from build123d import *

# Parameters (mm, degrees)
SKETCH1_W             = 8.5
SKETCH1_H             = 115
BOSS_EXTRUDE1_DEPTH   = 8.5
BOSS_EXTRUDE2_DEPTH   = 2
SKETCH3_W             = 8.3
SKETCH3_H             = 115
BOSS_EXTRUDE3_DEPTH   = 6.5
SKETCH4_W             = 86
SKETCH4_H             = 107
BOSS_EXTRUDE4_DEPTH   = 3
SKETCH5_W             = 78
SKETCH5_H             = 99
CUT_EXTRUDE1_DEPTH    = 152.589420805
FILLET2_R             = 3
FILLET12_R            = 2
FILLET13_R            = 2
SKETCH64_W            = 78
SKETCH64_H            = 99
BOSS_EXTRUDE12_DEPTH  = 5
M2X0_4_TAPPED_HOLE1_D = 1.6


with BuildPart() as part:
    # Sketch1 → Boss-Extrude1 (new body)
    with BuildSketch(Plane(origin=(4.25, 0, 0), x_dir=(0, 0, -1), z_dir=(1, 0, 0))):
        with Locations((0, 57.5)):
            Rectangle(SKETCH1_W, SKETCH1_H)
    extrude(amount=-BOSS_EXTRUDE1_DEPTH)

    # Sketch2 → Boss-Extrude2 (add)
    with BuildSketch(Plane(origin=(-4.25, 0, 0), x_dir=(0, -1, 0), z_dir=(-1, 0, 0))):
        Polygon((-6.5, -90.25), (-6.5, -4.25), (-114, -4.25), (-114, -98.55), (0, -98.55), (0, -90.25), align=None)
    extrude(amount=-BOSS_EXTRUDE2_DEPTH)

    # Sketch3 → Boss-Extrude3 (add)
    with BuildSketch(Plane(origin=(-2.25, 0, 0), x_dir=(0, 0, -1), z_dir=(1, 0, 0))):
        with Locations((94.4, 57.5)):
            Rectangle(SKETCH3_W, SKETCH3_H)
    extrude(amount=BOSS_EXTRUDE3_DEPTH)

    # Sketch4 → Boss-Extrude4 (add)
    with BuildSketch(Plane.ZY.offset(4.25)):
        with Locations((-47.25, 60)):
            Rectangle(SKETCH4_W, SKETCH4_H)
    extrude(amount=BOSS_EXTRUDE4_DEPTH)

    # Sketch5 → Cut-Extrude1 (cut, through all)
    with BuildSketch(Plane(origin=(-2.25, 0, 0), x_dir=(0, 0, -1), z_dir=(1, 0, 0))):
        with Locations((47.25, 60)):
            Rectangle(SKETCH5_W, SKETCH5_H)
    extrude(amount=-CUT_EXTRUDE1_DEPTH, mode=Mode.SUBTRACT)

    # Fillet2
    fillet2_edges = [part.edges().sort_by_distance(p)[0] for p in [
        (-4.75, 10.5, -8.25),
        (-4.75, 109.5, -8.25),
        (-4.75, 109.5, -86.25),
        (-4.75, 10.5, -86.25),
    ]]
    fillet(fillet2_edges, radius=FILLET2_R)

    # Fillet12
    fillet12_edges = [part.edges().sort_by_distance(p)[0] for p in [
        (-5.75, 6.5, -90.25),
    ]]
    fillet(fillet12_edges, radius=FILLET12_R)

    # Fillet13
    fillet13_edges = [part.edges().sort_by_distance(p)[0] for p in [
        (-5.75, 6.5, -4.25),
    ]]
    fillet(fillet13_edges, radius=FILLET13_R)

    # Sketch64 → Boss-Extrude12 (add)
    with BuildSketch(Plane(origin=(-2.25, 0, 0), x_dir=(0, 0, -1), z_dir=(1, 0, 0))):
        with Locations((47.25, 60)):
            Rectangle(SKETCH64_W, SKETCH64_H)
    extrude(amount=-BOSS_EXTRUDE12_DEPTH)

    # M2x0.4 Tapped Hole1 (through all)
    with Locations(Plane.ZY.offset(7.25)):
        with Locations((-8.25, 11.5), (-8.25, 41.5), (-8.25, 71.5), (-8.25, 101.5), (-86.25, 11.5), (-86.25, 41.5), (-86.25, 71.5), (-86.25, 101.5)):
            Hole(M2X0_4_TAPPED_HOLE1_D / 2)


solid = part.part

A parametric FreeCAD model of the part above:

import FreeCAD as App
import Part
import Sketcher

V = App.Vector
Q = App.Units.Quantity


def edges_at(feature, points):
    """Names of the edges that pass closest to the given points."""
    edges = feature.Shape.Edges
    near = lambda p: min(range(len(edges)), key=lambda i: edges[i].distToShape(Part.Vertex(*p))[0])
    return sorted({f"Edge{near(p) + 1}" for p in points})

doc = App.newDocument("Part")
body = doc.addObject("PartDesign::Body", "Body")

# Sketch on YZ plane
sketch1 = body.newObject("Sketcher::SketchObject", "Sketch")
sketch1.AttachmentSupport = (doc.getObject("YZ_Plane"), [""])
sketch1.MapMode = "FlatFace"
sketch1.AttachmentOffset = App.Placement(V(0, 0, 4.25), App.Rotation())
sketch1.addGeometry(Part.LineSegment(V(115, 4, 0), V(0, 4, 0)), False)
sketch1.addGeometry(Part.LineSegment(V(0, 4, 0), V(0, -4, 0)), False)
sketch1.addGeometry(Part.LineSegment(V(0, -4, 0), V(115, -4, 0)), False)
sketch1.addGeometry(Part.LineSegment(V(115, -4, 0), V(115, 4, 0)), False)
sketch1.addConstraint(Sketcher.Constraint("Coincident", 0, 2, 1, 1))
sketch1.addConstraint(Sketcher.Constraint("Coincident", 1, 2, 2, 1))
sketch1.addConstraint(Sketcher.Constraint("Coincident", 2, 2, 3, 1))
sketch1.addConstraint(Sketcher.Constraint("Coincident", 3, 2, 0, 1))
sketch1.addConstraint(Sketcher.Constraint("Horizontal", 0))
sketch1.addConstraint(Sketcher.Constraint("Vertical", 1))
sketch1.addConstraint(Sketcher.Constraint("Horizontal", 2))
sketch1.addConstraint(Sketcher.Constraint("Vertical", 3))
sketch1.addConstraint(Sketcher.Constraint("Symmetric", 0, 2, 1, 2, -1, 1))
sketch1.addConstraint(Sketcher.Constraint("DistanceX", 0, 2, 0, 1, Q("115 mm")))
sketch1.addConstraint(Sketcher.Constraint("DistanceY", 1, 2, 1, 1, Q("8.5 mm")))
pad1 = body.newObject("PartDesign::Pad", "Pad")
pad1.Profile = sketch1
pad1.Length = 8.5
pad1.Reversed = True

# Sketch on YZ plane
sketch2 = body.newObject("Sketcher::SketchObject", "Sketch001")
sketch2.AttachmentSupport = (doc.getObject("YZ_Plane"), [""])
sketch2.MapMode = "FlatFace"
sketch2.AttachmentOffset = App.Placement(V(0, 0, -4.25), App.Rotation())
sketch2.addGeometry(Part.LineSegment(V(6, -90, 0), V(6, -4, 0)), False)
sketch2.addGeometry(Part.LineSegment(V(6, -4, 0), V(114, -4, 0)), False)
sketch2.addGeometry(Part.LineSegment(V(114, -4, 0), V(114, -99, 0)), False)
sketch2.addGeometry(Part.LineSegment(V(114, -99, 0), V(0, -99, 0)), False)
sketch2.addGeometry(Part.LineSegment(V(0, -99, 0), V(0, -90, 0)), False)
sketch2.addGeometry(Part.LineSegment(V(0, -90, 0), V(6, -90, 0)), False)
sketch2.addConstraint(Sketcher.Constraint("Coincident", 0, 2, 1, 1))
sketch2.addConstraint(Sketcher.Constraint("Coincident", 1, 2, 2, 1))
sketch2.addConstraint(Sketcher.Constraint("Coincident", 2, 2, 3, 1))
sketch2.addConstraint(Sketcher.Constraint("Coincident", 3, 2, 4, 1))
sketch2.addConstraint(Sketcher.Constraint("Coincident", 4, 2, 5, 1))
sketch2.addConstraint(Sketcher.Constraint("Coincident", 5, 2, 0, 1))
sketch2.addConstraint(Sketcher.Constraint("Vertical", 0))
sketch2.addConstraint(Sketcher.Constraint("Horizontal", 1))
sketch2.addConstraint(Sketcher.Constraint("Vertical", 2))
sketch2.addConstraint(Sketcher.Constraint("Horizontal", 3))
sketch2.addConstraint(Sketcher.Constraint("Vertical", 4))
sketch2.addConstraint(Sketcher.Constraint("Horizontal", 5))
sketch2.addConstraint(Sketcher.Constraint("PointOnObject", 3, 2, -2))
sketch2.addConstraint(Sketcher.Constraint("DistanceX", 3, 2, 3, 1, Q("114 mm")))
sketch2.addConstraint(Sketcher.Constraint("DistanceY", 0, 1, 0, 2, Q("86 mm")))
sketch2.addConstraint(Sketcher.Constraint("DistanceX", 1, 1, 1, 2, Q("107.5 mm")))
sketch2.addConstraint(Sketcher.Constraint("DistanceY", 2, 2, 2, 1, Q("94.3 mm")))
sketch2.addConstraint(Sketcher.Constraint("DistanceY", 0, 2, -1, 1, Q("4.25 mm")))
pad2 = body.newObject("PartDesign::Pad", "Pad001")
pad2.Profile = sketch2
pad2.Length = 2

# Sketch on YZ plane
sketch3 = body.newObject("Sketcher::SketchObject", "Sketch002")
sketch3.AttachmentSupport = (doc.getObject("YZ_Plane"), [""])
sketch3.MapMode = "FlatFace"
sketch3.AttachmentOffset = App.Placement(V(0, 0, -2.25), App.Rotation())
sketch3.addGeometry(Part.LineSegment(V(115, -90, 0), V(0, -90, 0)), False)
sketch3.addGeometry(Part.LineSegment(V(0, -90, 0), V(0, -99, 0)), False)
sketch3.addGeometry(Part.LineSegment(V(0, -99, 0), V(115, -99, 0)), False)
sketch3.addGeometry(Part.LineSegment(V(115, -99, 0), V(115, -90, 0)), False)
sketch3.addConstraint(Sketcher.Constraint("Coincident", 0, 2, 1, 1))
sketch3.addConstraint(Sketcher.Constraint("Coincident", 1, 2, 2, 1))
sketch3.addConstraint(Sketcher.Constraint("Coincident", 2, 2, 3, 1))
sketch3.addConstraint(Sketcher.Constraint("Coincident", 3, 2, 0, 1))
sketch3.addConstraint(Sketcher.Constraint("Horizontal", 0))
sketch3.addConstraint(Sketcher.Constraint("Vertical", 1))
sketch3.addConstraint(Sketcher.Constraint("Horizontal", 2))
sketch3.addConstraint(Sketcher.Constraint("Vertical", 3))
sketch3.addConstraint(Sketcher.Constraint("PointOnObject", 0, 2, -2))
sketch3.addConstraint(Sketcher.Constraint("DistanceX", 0, 2, 0, 1, Q("115 mm")))
sketch3.addConstraint(Sketcher.Constraint("DistanceY", 1, 2, 1, 1, Q("8.3 mm")))
sketch3.addConstraint(Sketcher.Constraint("DistanceY", 0, 2, -1, 1, Q("90.25 mm")))
pad3 = body.newObject("PartDesign::Pad", "Pad002")
pad3.Profile = sketch3
pad3.Length = 6.5

# Sketch on YZ plane
sketch4 = body.newObject("Sketcher::SketchObject", "Sketch003")
sketch4.AttachmentSupport = (doc.getObject("YZ_Plane"), [""])
sketch4.MapMode = "FlatFace"
sketch4.AttachmentOffset = App.Placement(V(0, 0, -4.25), App.Rotation())
sketch4.addGeometry(Part.LineSegment(V(114, -90, 0), V(6, -90, 0)), False)
sketch4.addGeometry(Part.LineSegment(V(6, -90, 0), V(6, -4, 0)), False)
sketch4.addGeometry(Part.LineSegment(V(6, -4, 0), V(114, -4, 0)), False)
sketch4.addGeometry(Part.LineSegment(V(114, -4, 0), V(114, -90, 0)), False)
sketch4.addConstraint(Sketcher.Constraint("Coincident", 0, 2, 1, 1))
sketch4.addConstraint(Sketcher.Constraint("Coincident", 1, 2, 2, 1))
sketch4.addConstraint(Sketcher.Constraint("Coincident", 2, 2, 3, 1))
sketch4.addConstraint(Sketcher.Constraint("Coincident", 3, 2, 0, 1))
sketch4.addConstraint(Sketcher.Constraint("Horizontal", 0))
sketch4.addConstraint(Sketcher.Constraint("Vertical", 1))
sketch4.addConstraint(Sketcher.Constraint("Horizontal", 2))
sketch4.addConstraint(Sketcher.Constraint("Vertical", 3))
sketch4.addConstraint(Sketcher.Constraint("DistanceX", 0, 2, 0, 1, Q("107 mm")))
sketch4.addConstraint(Sketcher.Constraint("DistanceY", 1, 1, 1, 2, Q("86 mm")))
sketch4.addConstraint(Sketcher.Constraint("DistanceX", -1, 1, 0, 2, Q("6.5 mm")))
sketch4.addConstraint(Sketcher.Constraint("DistanceY", 0, 2, -1, 1, Q("90.25 mm")))
pad4 = body.newObject("PartDesign::Pad", "Pad003")
pad4.Profile = sketch4
pad4.Length = 3
pad4.Reversed = True

# Sketch on YZ plane
sketch5 = body.newObject("Sketcher::SketchObject", "Sketch004")
sketch5.AttachmentSupport = (doc.getObject("YZ_Plane"), [""])
sketch5.MapMode = "FlatFace"
sketch5.AttachmentOffset = App.Placement(V(0, 0, -2.25), App.Rotation())
sketch5.addGeometry(Part.LineSegment(V(110, -8, 0), V(10, -8, 0)), False)
sketch5.addGeometry(Part.LineSegment(V(10, -8, 0), V(10, -86, 0)), False)
sketch5.addGeometry(Part.LineSegment(V(10, -86, 0), V(110, -86, 0)), False)
sketch5.addGeometry(Part.LineSegment(V(110, -86, 0), V(110, -8, 0)), False)
sketch5.addConstraint(Sketcher.Constraint("Coincident", 0, 2, 1, 1))
sketch5.addConstraint(Sketcher.Constraint("Coincident", 1, 2, 2, 1))
sketch5.addConstraint(Sketcher.Constraint("Coincident", 2, 2, 3, 1))
sketch5.addConstraint(Sketcher.Constraint("Coincident", 3, 2, 0, 1))
sketch5.addConstraint(Sketcher.Constraint("Horizontal", 0))
sketch5.addConstraint(Sketcher.Constraint("Vertical", 1))
sketch5.addConstraint(Sketcher.Constraint("Horizontal", 2))
sketch5.addConstraint(Sketcher.Constraint("Vertical", 3))
sketch5.addConstraint(Sketcher.Constraint("DistanceX", 0, 2, 0, 1, Q("99 mm")))
sketch5.addConstraint(Sketcher.Constraint("DistanceY", 1, 2, 1, 1, Q("78 mm")))
sketch5.addConstraint(Sketcher.Constraint("DistanceX", -1, 1, 0, 2, Q("10.5 mm")))
sketch5.addConstraint(Sketcher.Constraint("DistanceY", 0, 2, -1, 1, Q("8.25 mm")))
pocket1 = body.newObject("PartDesign::Pocket", "Pocket")
pocket1.Profile = sketch5
pocket1.Type = "ThroughAll"
doc.recompute()

fillet = body.newObject("PartDesign::Fillet", "Fillet")
fillet.Base = (pocket1, edges_at(pocket1, [
    (-4.75, 10.5, -8.25),
    (-4.75, 109.5, -8.25),
    (-4.75, 109.5, -86.25),
    (-4.75, 10.5, -86.25),
]))
fillet.Radius = 3
doc.recompute()

fillet2 = body.newObject("PartDesign::Fillet", "Fillet001")
fillet2.Base = (fillet, edges_at(fillet, [(-5.75, 6.5, -90.25)]))
fillet2.Radius = 2
doc.recompute()

fillet3 = body.newObject("PartDesign::Fillet", "Fillet002")
fillet3.Base = (fillet2, edges_at(fillet2, [(-5.75, 6.5, -4.25)]))
fillet3.Radius = 2

# Sketch on YZ plane
sketch6 = body.newObject("Sketcher::SketchObject", "Sketch005")
sketch6.AttachmentSupport = (doc.getObject("YZ_Plane"), [""])
sketch6.MapMode = "FlatFace"
sketch6.AttachmentOffset = App.Placement(V(0, 0, -2.25), App.Rotation())
sketch6.addGeometry(Part.LineSegment(V(110, -8, 0), V(10, -8, 0)), False)
sketch6.addGeometry(Part.LineSegment(V(10, -8, 0), V(10, -86, 0)), False)
sketch6.addGeometry(Part.LineSegment(V(10, -86, 0), V(110, -86, 0)), False)
sketch6.addGeometry(Part.LineSegment(V(110, -86, 0), V(110, -8, 0)), False)
sketch6.addConstraint(Sketcher.Constraint("Coincident", 0, 2, 1, 1))
sketch6.addConstraint(Sketcher.Constraint("Coincident", 1, 2, 2, 1))
sketch6.addConstraint(Sketcher.Constraint("Coincident", 2, 2, 3, 1))
sketch6.addConstraint(Sketcher.Constraint("Coincident", 3, 2, 0, 1))
sketch6.addConstraint(Sketcher.Constraint("Horizontal", 0))
sketch6.addConstraint(Sketcher.Constraint("Vertical", 1))
sketch6.addConstraint(Sketcher.Constraint("Horizontal", 2))
sketch6.addConstraint(Sketcher.Constraint("Vertical", 3))
sketch6.addConstraint(Sketcher.Constraint("DistanceX", 0, 2, 0, 1, Q("99 mm")))
sketch6.addConstraint(Sketcher.Constraint("DistanceY", 1, 2, 1, 1, Q("78 mm")))
sketch6.addConstraint(Sketcher.Constraint("DistanceX", -1, 1, 0, 2, Q("10.5 mm")))
sketch6.addConstraint(Sketcher.Constraint("DistanceY", 0, 2, -1, 1, Q("8.25 mm")))
pad5 = body.newObject("PartDesign::Pad", "Pad004")
pad5.Profile = sketch6
pad5.Length = 5
pad5.Reversed = True

# Sketch on YZ plane
sketch7 = body.newObject("Sketcher::SketchObject", "Sketch006")
sketch7.AttachmentSupport = (doc.getObject("YZ_Plane"), [""])
sketch7.MapMode = "FlatFace"
sketch7.AttachmentOffset = App.Placement(V(0, 0, -7.25), App.Rotation())
sketch7.addGeometry(Part.Circle(V(11.5, -8.2, 0), V(0, 0, 1), 0.8), False)
sketch7.addGeometry(Part.Circle(V(41.5, -8.2, 0), V(0, 0, 1), 0.8), False)
sketch7.addGeometry(Part.Circle(V(71.5, -8.2, 0), V(0, 0, 1), 0.8), False)
sketch7.addGeometry(Part.Circle(V(101.5, -8.2, 0), V(0, 0, 1), 0.8), False)
sketch7.addGeometry(Part.Circle(V(11.5, -86.2, 0), V(0, 0, 1), 0.8), False)
sketch7.addGeometry(Part.Circle(V(41.5, -86.2, 0), V(0, 0, 1), 0.8), False)
sketch7.addGeometry(Part.Circle(V(71.5, -86.2, 0), V(0, 0, 1), 0.8), False)
sketch7.addGeometry(Part.Circle(V(101.5, -86.2, 0), V(0, 0, 1), 0.8), False)
sketch7.addConstraint(Sketcher.Constraint("Equal", 0, 1))
sketch7.addConstraint(Sketcher.Constraint("Equal", 1, 2))
sketch7.addConstraint(Sketcher.Constraint("Equal", 2, 3))
sketch7.addConstraint(Sketcher.Constraint("Equal", 3, 4))
sketch7.addConstraint(Sketcher.Constraint("Equal", 4, 5))
sketch7.addConstraint(Sketcher.Constraint("Equal", 5, 6))
sketch7.addConstraint(Sketcher.Constraint("Equal", 6, 7))
sketch7.addConstraint(Sketcher.Constraint("Horizontal", 0, 3, 1, 3))
sketch7.addConstraint(Sketcher.Constraint("Horizontal", 1, 3, 2, 3))
sketch7.addConstraint(Sketcher.Constraint("Horizontal", 2, 3, 3, 3))
sketch7.addConstraint(Sketcher.Constraint("Horizontal", 4, 3, 5, 3))
sketch7.addConstraint(Sketcher.Constraint("Horizontal", 5, 3, 6, 3))
sketch7.addConstraint(Sketcher.Constraint("Horizontal", 6, 3, 7, 3))
sketch7.addConstraint(Sketcher.Constraint("Vertical", 0, 3, 4, 3))
sketch7.addConstraint(Sketcher.Constraint("Vertical", 1, 3, 5, 3))
sketch7.addConstraint(Sketcher.Constraint("Vertical", 2, 3, 6, 3))
sketch7.addConstraint(Sketcher.Constraint("Vertical", 3, 3, 7, 3))
sketch7.addConstraint(Sketcher.Constraint("Diameter", 0, Q("1.6 mm")))
sketch7.addConstraint(Sketcher.Constraint("DistanceX", 0, 3, 1, 3, Q("30 mm")))
sketch7.addConstraint(Sketcher.Constraint("DistanceX", 1, 3, 2, 3, Q("30 mm")))
sketch7.addConstraint(Sketcher.Constraint("DistanceX", 2, 3, 3, 3, Q("30 mm")))
sketch7.addConstraint(Sketcher.Constraint("DistanceY", 4, 3, 0, 3, Q("78 mm")))
sketch7.addConstraint(Sketcher.Constraint("DistanceX", -1, 1, 0, 3, Q("11.5 mm")))
sketch7.addConstraint(Sketcher.Constraint("DistanceY", 0, 3, -1, 1, Q("8.25 mm")))
doc.recompute()
hole = body.newObject("PartDesign::Hole", "Hole")
hole.Profile = sketch7
hole.ThreadType = "None"
hole.Diameter = 1.6
hole.DepthType = "ThroughAll"
hole.Reversed = True

doc.recompute()
